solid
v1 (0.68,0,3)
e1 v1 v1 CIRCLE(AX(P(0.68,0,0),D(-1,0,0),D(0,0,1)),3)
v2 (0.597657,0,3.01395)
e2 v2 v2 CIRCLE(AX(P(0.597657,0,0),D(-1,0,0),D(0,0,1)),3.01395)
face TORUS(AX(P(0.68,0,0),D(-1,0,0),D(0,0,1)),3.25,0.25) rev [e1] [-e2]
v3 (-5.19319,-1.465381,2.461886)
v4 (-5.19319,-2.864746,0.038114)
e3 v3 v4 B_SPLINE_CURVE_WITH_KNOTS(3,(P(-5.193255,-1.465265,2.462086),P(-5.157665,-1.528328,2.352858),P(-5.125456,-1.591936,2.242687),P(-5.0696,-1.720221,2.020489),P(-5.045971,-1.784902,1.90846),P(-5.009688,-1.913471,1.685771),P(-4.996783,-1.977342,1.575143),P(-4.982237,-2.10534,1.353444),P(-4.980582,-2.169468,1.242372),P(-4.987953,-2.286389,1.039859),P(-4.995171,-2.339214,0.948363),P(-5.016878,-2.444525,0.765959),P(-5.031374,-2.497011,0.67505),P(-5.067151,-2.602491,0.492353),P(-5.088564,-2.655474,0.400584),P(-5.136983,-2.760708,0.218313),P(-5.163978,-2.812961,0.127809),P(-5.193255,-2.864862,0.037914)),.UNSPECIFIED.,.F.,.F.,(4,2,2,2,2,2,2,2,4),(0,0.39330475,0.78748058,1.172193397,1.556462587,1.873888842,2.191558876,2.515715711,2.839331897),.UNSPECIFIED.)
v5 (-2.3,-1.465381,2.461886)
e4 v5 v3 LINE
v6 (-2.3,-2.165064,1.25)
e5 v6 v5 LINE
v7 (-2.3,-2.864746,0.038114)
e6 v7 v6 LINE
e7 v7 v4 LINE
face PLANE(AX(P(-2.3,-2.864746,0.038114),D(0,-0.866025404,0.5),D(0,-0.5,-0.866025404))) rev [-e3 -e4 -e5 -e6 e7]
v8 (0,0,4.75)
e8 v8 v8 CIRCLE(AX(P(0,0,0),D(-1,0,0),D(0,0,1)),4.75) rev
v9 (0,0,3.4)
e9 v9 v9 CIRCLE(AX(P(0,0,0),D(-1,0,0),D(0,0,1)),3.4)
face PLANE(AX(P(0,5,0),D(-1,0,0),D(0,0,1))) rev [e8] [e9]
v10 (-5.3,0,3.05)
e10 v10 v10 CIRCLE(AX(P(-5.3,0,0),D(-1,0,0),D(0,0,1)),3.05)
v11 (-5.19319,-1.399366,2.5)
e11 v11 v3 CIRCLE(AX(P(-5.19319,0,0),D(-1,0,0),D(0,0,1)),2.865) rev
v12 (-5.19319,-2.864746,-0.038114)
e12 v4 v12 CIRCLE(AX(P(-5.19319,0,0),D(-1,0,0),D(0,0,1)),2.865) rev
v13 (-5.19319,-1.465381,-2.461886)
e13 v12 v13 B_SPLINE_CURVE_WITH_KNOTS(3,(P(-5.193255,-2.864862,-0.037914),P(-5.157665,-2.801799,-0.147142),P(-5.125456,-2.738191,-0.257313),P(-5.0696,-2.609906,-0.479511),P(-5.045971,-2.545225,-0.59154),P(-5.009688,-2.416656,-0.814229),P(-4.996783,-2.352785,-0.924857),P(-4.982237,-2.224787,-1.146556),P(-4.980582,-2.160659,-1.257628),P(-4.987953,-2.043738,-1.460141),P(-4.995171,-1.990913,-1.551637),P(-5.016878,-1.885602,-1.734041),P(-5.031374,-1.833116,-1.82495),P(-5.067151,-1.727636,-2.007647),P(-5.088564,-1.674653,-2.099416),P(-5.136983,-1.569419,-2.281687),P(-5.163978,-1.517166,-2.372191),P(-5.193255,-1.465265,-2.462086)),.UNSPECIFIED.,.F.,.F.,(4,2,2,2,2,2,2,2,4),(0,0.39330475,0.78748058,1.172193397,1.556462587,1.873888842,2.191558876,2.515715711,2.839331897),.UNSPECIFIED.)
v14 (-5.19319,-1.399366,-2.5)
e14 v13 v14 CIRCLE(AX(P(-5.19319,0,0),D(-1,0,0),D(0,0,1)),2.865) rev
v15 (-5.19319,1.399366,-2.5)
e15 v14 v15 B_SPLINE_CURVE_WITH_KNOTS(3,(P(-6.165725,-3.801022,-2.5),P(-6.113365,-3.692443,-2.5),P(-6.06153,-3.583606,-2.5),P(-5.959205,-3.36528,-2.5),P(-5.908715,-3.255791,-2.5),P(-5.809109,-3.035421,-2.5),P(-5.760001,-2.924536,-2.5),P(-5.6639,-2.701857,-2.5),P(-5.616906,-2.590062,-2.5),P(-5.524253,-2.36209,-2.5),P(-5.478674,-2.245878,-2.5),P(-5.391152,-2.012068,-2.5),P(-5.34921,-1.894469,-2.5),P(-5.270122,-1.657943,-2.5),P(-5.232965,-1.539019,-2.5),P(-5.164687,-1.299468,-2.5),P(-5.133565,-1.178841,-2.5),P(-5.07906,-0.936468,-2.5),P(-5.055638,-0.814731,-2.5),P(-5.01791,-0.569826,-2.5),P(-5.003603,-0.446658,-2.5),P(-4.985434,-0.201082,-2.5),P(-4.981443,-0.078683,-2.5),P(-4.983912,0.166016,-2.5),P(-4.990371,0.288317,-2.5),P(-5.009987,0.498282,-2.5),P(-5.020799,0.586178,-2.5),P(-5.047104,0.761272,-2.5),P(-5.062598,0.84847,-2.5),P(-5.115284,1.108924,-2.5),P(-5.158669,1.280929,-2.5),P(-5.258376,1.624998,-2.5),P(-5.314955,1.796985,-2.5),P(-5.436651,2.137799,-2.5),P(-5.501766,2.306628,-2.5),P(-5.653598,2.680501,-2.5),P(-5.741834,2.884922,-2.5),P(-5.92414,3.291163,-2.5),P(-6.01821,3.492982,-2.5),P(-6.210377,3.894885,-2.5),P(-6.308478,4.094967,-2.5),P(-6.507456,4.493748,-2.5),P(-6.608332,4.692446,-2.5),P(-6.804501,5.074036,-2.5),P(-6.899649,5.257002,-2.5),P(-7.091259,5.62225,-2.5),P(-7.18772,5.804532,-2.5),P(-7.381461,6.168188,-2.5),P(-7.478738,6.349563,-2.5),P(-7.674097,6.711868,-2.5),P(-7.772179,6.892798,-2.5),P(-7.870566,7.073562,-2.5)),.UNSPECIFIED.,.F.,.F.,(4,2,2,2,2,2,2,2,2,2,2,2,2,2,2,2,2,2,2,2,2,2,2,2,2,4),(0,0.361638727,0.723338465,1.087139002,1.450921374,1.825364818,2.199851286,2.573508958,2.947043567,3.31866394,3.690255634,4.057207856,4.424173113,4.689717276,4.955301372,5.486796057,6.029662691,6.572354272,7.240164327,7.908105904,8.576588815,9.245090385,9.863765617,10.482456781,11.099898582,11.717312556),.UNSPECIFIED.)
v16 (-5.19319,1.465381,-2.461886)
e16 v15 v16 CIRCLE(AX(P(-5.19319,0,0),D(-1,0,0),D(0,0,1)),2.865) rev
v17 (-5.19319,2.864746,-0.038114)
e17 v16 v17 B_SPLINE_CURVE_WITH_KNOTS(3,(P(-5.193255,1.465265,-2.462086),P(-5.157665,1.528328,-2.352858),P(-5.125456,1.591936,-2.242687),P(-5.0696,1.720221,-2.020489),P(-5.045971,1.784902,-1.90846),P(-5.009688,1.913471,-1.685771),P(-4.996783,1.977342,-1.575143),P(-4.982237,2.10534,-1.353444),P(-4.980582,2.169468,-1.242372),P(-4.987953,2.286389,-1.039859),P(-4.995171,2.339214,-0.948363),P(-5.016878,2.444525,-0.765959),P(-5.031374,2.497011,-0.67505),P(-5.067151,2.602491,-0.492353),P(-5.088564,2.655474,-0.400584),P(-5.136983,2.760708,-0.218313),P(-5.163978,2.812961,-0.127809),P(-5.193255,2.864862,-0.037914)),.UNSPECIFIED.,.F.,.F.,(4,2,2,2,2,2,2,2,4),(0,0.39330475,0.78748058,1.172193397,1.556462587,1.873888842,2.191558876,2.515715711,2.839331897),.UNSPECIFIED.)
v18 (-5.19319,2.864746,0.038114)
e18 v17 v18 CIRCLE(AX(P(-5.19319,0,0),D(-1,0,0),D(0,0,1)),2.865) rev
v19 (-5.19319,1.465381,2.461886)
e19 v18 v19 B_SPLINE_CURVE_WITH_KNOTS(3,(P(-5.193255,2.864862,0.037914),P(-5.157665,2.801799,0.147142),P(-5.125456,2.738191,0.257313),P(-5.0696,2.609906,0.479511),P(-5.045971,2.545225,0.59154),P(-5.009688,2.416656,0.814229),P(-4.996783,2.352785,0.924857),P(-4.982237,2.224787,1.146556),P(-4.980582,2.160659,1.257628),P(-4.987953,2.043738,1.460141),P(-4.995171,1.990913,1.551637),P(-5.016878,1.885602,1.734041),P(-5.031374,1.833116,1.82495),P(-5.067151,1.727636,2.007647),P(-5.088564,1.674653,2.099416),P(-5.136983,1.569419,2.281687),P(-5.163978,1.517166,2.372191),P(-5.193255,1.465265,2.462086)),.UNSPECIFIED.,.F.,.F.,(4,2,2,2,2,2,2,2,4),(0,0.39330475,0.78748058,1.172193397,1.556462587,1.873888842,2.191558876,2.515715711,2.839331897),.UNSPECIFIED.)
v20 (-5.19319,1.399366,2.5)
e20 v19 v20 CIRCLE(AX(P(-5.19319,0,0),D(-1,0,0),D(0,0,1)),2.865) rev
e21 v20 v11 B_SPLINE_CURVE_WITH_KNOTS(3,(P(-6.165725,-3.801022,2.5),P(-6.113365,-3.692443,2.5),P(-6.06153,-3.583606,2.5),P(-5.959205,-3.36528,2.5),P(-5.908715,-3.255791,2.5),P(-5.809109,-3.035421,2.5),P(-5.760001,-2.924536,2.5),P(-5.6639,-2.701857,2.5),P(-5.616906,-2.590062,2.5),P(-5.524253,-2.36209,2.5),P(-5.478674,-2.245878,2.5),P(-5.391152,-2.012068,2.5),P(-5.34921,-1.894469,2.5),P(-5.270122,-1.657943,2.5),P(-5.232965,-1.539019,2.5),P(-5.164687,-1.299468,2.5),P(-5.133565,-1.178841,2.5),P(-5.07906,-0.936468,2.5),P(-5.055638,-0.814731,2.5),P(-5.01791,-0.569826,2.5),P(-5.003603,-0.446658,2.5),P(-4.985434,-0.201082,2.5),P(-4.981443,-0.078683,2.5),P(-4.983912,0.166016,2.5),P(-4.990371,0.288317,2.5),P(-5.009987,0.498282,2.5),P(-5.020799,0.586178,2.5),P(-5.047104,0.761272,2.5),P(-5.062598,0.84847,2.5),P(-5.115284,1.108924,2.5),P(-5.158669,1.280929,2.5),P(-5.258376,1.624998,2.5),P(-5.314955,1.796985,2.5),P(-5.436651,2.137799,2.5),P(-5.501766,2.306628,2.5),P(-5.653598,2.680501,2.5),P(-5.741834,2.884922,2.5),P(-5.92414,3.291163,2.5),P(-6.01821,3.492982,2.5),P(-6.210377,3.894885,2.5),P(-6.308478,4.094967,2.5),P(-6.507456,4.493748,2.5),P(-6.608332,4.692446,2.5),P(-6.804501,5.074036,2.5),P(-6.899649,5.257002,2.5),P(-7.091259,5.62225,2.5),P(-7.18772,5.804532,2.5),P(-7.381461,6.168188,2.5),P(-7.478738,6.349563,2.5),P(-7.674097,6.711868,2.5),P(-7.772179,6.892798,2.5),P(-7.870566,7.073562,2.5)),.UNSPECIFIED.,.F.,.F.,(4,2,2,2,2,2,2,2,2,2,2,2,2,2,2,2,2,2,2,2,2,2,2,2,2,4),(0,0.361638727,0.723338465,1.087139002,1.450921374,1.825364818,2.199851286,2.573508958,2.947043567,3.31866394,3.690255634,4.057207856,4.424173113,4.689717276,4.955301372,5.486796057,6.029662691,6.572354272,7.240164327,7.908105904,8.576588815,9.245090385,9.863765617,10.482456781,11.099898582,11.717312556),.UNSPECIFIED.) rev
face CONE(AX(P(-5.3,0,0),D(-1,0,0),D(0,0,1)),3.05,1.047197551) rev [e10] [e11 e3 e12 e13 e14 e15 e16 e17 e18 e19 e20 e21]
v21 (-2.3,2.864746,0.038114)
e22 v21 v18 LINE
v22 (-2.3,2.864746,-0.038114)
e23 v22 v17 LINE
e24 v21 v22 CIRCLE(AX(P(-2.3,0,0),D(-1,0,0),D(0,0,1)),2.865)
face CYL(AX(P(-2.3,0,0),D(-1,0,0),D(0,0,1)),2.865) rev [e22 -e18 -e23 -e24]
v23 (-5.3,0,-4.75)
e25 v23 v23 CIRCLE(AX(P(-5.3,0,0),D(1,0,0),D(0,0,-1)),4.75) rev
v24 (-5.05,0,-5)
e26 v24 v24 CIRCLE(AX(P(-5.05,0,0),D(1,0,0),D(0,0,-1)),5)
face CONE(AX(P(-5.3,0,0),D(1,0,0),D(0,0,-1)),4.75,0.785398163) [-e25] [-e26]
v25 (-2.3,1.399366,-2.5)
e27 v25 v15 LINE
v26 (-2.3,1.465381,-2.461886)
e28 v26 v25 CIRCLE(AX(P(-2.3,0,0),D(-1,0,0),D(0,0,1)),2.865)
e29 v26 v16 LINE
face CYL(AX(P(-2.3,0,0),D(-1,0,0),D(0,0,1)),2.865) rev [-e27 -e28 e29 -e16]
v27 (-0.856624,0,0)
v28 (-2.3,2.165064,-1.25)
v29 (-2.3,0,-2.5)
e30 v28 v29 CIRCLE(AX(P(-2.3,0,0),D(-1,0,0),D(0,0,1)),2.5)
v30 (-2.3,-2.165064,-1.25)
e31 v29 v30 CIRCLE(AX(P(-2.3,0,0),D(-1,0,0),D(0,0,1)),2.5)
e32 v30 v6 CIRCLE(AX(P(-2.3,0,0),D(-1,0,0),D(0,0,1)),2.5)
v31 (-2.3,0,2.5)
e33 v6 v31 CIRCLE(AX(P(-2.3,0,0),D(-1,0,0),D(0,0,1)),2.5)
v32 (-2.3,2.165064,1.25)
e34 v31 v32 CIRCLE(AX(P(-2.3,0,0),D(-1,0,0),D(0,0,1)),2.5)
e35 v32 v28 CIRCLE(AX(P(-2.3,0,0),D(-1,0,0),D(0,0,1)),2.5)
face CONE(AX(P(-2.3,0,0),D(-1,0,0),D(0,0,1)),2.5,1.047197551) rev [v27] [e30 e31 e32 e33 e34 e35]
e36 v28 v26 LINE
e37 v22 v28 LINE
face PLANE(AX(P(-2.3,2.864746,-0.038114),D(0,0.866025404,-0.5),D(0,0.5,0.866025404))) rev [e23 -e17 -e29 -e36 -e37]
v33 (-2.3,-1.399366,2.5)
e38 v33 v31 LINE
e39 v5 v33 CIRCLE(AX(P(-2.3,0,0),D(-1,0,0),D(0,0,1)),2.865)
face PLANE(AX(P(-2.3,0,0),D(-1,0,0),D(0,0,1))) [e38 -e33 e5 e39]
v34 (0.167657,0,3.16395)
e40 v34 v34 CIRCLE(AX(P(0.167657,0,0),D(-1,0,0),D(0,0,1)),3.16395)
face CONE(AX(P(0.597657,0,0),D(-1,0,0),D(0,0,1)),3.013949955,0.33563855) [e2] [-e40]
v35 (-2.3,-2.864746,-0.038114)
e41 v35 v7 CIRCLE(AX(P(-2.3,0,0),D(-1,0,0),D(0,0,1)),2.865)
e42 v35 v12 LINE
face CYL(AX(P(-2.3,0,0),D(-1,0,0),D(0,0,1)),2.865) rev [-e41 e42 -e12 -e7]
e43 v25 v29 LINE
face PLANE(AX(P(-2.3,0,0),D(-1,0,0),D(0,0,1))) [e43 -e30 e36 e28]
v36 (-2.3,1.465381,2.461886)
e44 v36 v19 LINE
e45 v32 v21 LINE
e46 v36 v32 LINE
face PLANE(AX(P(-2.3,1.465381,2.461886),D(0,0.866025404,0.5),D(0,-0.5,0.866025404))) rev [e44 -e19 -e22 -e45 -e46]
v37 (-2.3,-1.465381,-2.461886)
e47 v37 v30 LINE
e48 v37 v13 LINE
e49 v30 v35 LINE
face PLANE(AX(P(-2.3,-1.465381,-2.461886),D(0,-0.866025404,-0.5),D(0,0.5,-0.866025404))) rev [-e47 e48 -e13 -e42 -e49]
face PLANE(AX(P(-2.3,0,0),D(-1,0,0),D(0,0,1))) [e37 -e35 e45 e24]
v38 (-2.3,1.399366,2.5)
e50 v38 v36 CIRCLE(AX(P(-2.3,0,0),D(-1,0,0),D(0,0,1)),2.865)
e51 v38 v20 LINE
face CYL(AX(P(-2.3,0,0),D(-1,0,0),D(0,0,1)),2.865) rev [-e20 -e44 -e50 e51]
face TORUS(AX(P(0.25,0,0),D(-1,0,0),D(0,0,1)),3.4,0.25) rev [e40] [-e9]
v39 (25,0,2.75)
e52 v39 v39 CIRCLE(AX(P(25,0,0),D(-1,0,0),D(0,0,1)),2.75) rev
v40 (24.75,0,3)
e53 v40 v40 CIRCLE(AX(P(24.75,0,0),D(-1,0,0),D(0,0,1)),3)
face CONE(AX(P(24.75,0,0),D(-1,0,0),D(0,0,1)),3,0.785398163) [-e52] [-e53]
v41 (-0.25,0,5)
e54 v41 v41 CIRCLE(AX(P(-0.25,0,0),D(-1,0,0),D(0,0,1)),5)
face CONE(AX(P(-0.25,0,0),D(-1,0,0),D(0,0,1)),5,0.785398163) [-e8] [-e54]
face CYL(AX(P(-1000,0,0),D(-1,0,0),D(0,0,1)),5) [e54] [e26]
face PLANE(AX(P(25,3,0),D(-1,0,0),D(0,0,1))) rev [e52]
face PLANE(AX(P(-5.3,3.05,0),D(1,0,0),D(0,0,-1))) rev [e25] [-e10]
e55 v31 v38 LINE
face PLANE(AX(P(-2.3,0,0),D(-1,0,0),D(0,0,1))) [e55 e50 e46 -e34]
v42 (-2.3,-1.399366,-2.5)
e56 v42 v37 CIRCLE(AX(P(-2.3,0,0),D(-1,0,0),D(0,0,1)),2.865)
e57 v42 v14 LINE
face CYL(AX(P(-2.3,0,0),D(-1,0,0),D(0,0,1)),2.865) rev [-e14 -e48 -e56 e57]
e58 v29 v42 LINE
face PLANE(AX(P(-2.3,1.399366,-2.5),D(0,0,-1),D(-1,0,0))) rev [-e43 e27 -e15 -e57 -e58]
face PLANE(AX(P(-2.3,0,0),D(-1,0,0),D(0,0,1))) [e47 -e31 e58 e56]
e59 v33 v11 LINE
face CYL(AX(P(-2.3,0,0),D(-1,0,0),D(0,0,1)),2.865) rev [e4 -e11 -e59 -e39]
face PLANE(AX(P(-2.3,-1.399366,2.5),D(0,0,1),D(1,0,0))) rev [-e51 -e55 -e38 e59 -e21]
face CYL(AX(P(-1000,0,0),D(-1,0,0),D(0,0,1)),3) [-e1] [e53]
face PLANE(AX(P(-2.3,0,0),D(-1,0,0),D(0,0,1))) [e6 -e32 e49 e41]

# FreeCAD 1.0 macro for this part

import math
import FreeCAD as App
import Part
import Sketcher
Q = App.Units.Quantity


def edges_at(feature, points):
    """Names of the edges that pass closest to the given points."""
    edges = feature.Shape.Edges
    near = lambda p: min(range(len(edges)), key=lambda i: edges[i].distToShape(Part.Vertex(*p))[0])
    return sorted({f"Edge{near(p) + 1}" for p in points})

doc = App.newDocument("Part")
body = doc.addObject("PartDesign::Body", "Body")

sketch1 = body.newObject("Sketcher::SketchObject", "Sketch")
sketch1.AttachmentSupport = (doc.getObject("XY_Plane"), [""])
sketch1.MapMode = "FlatFace"
sketch1.addGeometry(Part.LineSegment(App.Vector(-5.3, 3.05, 0), App.Vector(-4.982457, 2.5, 0)), False)
sketch1.addGeometry(Part.LineSegment(App.Vector(-4.982457, 2.5, 0), App.Vector(-2.3, 2.5, 0)), False)
sketch1.addGeometry(Part.LineSegment(App.Vector(-2.3, 2.5, 0), App.Vector(-0.856624, 0, 0)), False)
sketch1.addGeometry(Part.LineSegment(App.Vector(-0.856624, 0, 0), App.Vector(25, 0, 0)), False)
sketch1.addGeometry(Part.LineSegment(App.Vector(25, 0, 0), App.Vector(25, 3, 0)), False)
sketch1.addGeometry(Part.LineSegment(App.Vector(25, 3, 0), App.Vector(0.68, 3, 0)), False)
sketch1.addGeometry(Part.ArcOfCircle(Part.Circle(App.Vector(0.68, 3.25, 0), App.Vector(0, 0, 1), 0.25), math.radians(-109.230674), math.radians(-89.999999)), False)
sketch1.addGeometry(Part.LineSegment(App.Vector(0.597657, 3.01395, 0), App.Vector(0.167657, 3.16395, 0)), False)
sketch1.addGeometry(Part.ArcOfCircle(Part.Circle(App.Vector(0.25, 3.4, 0), App.Vector(0, 0, 1), 0.25), math.radians(-180), math.radians(-109.230672)), False)
sketch1.addGeometry(Part.LineSegment(App.Vector(0, 3.4, 0), App.Vector(0, 5, 0)), False)
sketch1.addGeometry(Part.LineSegment(App.Vector(0, 5, 0), App.Vector(-5.3, 5, 0)), False)
sketch1.addGeometry(Part.LineSegment(App.Vector(-5.3, 5, 0), App.Vector(-5.3, 3.05, 0)), False)
sketch1.addConstraint(Sketcher.Constraint("Coincident", 0, 2, 1, 1))
sketch1.addConstraint(Sketcher.Constraint("Coincident", 1, 2, 2, 1))
sketch1.addConstraint(Sketcher.Constraint("Coincident", 2, 2, 3, 1))
sketch1.addConstraint(Sketcher.Constraint("Coincident", 3, 2, 4, 1))
sketch1.addConstraint(Sketcher.Constraint("Coincident", 4, 2, 5, 1))
sketch1.addConstraint(Sketcher.Constraint("Tangent", 5, 2, 6, 2))
sketch1.addConstraint(Sketcher.Constraint("Tangent", 6, 1, 7, 1))
sketch1.addConstraint(Sketcher.Constraint("Tangent", 7, 2, 8, 2))
sketch1.addConstraint(Sketcher.Constraint("Tangent", 8, 1, 9, 1))
sketch1.addConstraint(Sketcher.Constraint("Coincident", 9, 2, 10, 1))
sketch1.addConstraint(Sketcher.Constraint("Coincident", 10, 2, 11, 1))
sketch1.addConstraint(Sketcher.Constraint("Coincident", 11, 2, 0, 1))
sketch1.addConstraint(Sketcher.Constraint("Horizontal", 1))
sketch1.addConstraint(Sketcher.Constraint("Horizontal", 3))
sketch1.addConstraint(Sketcher.Constraint("Vertical", 4))
sketch1.addConstraint(Sketcher.Constraint("Horizontal", 5))
sketch1.addConstraint(Sketcher.Constraint("Vertical", 9))
sketch1.addConstraint(Sketcher.Constraint("Horizontal", 10))
sketch1.addConstraint(Sketcher.Constraint("Vertical", 11))
sketch1.addConstraint(Sketcher.Constraint("Equal", 6, 8))
sketch1.addConstraint(Sketcher.Constraint("PointOnObject", 2, 2, -1))
sketch1.addConstraint(Sketcher.Constraint("PointOnObject", 8, 1, -2))
sketch1.addConstraint(Sketcher.Constraint("Parallel", 0, 2))
sketch1.addConstraint(Sketcher.Constraint("DistanceY", 4, 1, 4, 2, 3.0))
sketch1.addConstraint(Sketcher.Constraint("Angle", 0, Q("-60 deg")))
sketch1.addConstraint(Sketcher.Constraint("Radius", 6, 0.25))
sketch1.addConstraint(Sketcher.Constraint("DistanceX", 10, 2, 10, 1, 5.3))
sketch1.addConstraint(Sketcher.Constraint("DistanceY", 9, 1, 9, 2, 1.6))
sketch1.addConstraint(Sketcher.Constraint("DistanceX", -1, 1, 3, 2, 25.0))
sketch1.addConstraint(Sketcher.Constraint("DistanceY", -1, 1, 9, 2, 5.0))
sketch1.addConstraint(Sketcher.Constraint("DistanceX", 10, 2, 1, 2, 3.0))
sketch1.addConstraint(Sketcher.Constraint("DistanceX", 5, 2, 5, 1, 24.32))
sketch1.addConstraint(Sketcher.Constraint("DistanceY", 11, 2, 11, 1, 1.95))
sketch1.addConstraint(Sketcher.Constraint("DistanceY", -1, 1, 0, 2, 2.5))
revolution = body.newObject("PartDesign::Revolution", "Revolution")
revolution.Profile = sketch1
revolution.ReferenceAxis = (sketch1, ["H_Axis"])
revolution.Angle = 360

sketch2 = body.newObject("Sketcher::SketchObject", "Sketch001")
sketch2.AttachmentSupport = (doc.getObject("YZ_Plane"), [""])
sketch2.MapMode = "FlatFace"
sketch2.AttachmentOffset = App.Placement(App.Vector(0, 0, -5.3), App.Rotation())
sketch2.addGeometry(Part.LineSegment(App.Vector(2.864746, -0.038114, 0), App.Vector(1.465381, -2.461886, 0)), False)
sketch2.addGeometry(Part.ArcOfCircle(Part.Circle(App.Vector(-0.000001, 0.000001, 0), App.Vector(0, 0, 1), 2.865002), math.radians(-60.762237), math.radians(-59.237763)), False)
sketch2.addGeometry(Part.LineSegment(App.Vector(1.399366, -2.5, 0), App.Vector(-1.399366, -2.5, 0)), False)
sketch2.addGeometry(Part.ArcOfCircle(Part.Circle(App.Vector(0.000001, 0.000001, 0), App.Vector(0, 0, 1), 2.865002), math.radians(-120.762237), math.radians(-119.237763)), False)
sketch2.addGeometry(Part.LineSegment(App.Vector(-1.465381, -2.461886, 0), App.Vector(-2.864746, -0.038114, 0)), False)
sketch2.addGeometry(Part.ArcOfCircle(Part.Circle(App.Vector(-0.000004, 0, 0), App.Vector(0, 0, 1), 2.864996), math.radians(179.237761), math.radians(180.762239)), False)
sketch2.addGeometry(Part.LineSegment(App.Vector(-2.864746, 0.038114, 0), App.Vector(-1.465381, 2.461886, 0)), False)
sketch2.addGeometry(Part.ArcOfCircle(Part.Circle(App.Vector(0.000001, -0.000001, 0), App.Vector(0, 0, 1), 2.865002), math.radians(119.237763), math.radians(120.762237)), False)
sketch2.addGeometry(Part.LineSegment(App.Vector(-1.399366, 2.5, 0), App.Vector(1.399366, 2.5, 0)), False)
sketch2.addGeometry(Part.ArcOfCircle(Part.Circle(App.Vector(-0.000001, -0.000001, 0), App.Vector(0, 0, 1), 2.865002), math.radians(59.237763), math.radians(60.762237)), False)
sketch2.addGeometry(Part.LineSegment(App.Vector(1.465381, 2.461886, 0), App.Vector(2.864746, 0.038114, 0)), False)
sketch2.addGeometry(Part.ArcOfCircle(Part.Circle(App.Vector(0.000004, 0, 0), App.Vector(0, 0, 1), 2.864996), math.radians(-0.762239), math.radians(0.762239)), False)
sketch2.addConstraint(Sketcher.Constraint("Coincident", 0, 2, 1, 2))
sketch2.addConstraint(Sketcher.Constraint("Coincident", 1, 1, 2, 1))
sketch2.addConstraint(Sketcher.Constraint("Coincident", 2, 2, 3, 2))
sketch2.addConstraint(Sketcher.Constraint("Coincident", 3, 1, 4, 1))
sketch2.addConstraint(Sketcher.Constraint("Coincident", 4, 2, 5, 2))
sketch2.addConstraint(Sketcher.Constraint("Coincident", 5, 1, 6, 1))
sketch2.addConstraint(Sketcher.Constraint("Coincident", 6, 2, 7, 2))
sketch2.addConstraint(Sketcher.Constraint("Coincident", 7, 1, 8, 1))
sketch2.addConstraint(Sketcher.Constraint("Coincident", 8, 2, 9, 2))
sketch2.addConstraint(Sketcher.Constraint("Coincident", 9, 1, 10, 1))
sketch2.addConstraint(Sketcher.Constraint("Coincident", 10, 2, 11, 2))
sketch2.addConstraint(Sketcher.Constraint("Coincident", 11, 1, 0, 1))
sketch2.addConstraint(Sketcher.Constraint("Horizontal", 2))
sketch2.addConstraint(Sketcher.Constraint("Horizontal", 8))
sketch2.addConstraint(Sketcher.Constraint("Coincident", 1, 3, -1, 1))
sketch2.addConstraint(Sketcher.Constraint("Coincident", 3, 3, -1, 1))
sketch2.addConstraint(Sketcher.Constraint("Coincident", 5, 3, -1, 1))
sketch2.addConstraint(Sketcher.Constraint("Coincident", 7, 3, -1, 1))
sketch2.addConstraint(Sketcher.Constraint("Coincident", 9, 3, -1, 1))
sketch2.addConstraint(Sketcher.Constraint("Coincident", 11, 3, -1, 1))
sketch2.addConstraint(Sketcher.Constraint("Radius", 1, 2.865002))
sketch2.addConstraint(Sketcher.Constraint("Radius", 3, 2.865002))
sketch2.addConstraint(Sketcher.Constraint("Radius", 7, 2.865002))
sketch2.addConstraint(Sketcher.Constraint("Radius", 9, 2.865002))
sketch2.addConstraint(Sketcher.Constraint("DistanceY", 1, 1, -1, 1, 2.5))
sketch2.addConstraint(Sketcher.Constraint("DistanceY", -1, 1, 7, 1, 2.5))
sketch2.addConstraint(Sketcher.Constraint("DistanceY", 3, 1, 5, 1, 2.5))
sketch2.addConstraint(Sketcher.Constraint("DistanceY", 4, 2, 6, 2, 2.5))
sketch2.addConstraint(Sketcher.Constraint("DistanceY", 0, 2, 10, 2, 2.5))
sketch2.addConstraint(Sketcher.Constraint("Radius", 5, 2.864996))
sketch2.addConstraint(Sketcher.Constraint("Radius", 11, 2.864996))
sketch2.addConstraint(Sketcher.Constraint("Distance", 0, 2.798732))
sketch2.addConstraint(Sketcher.Constraint("Distance", 4, 2.798732))
sketch2.addConstraint(Sketcher.Constraint("Distance", 6, 2.798732))
sketch2.addConstraint(Sketcher.Constraint("Distance", 10, 2.798732))
sketch2.addConstraint(Sketcher.Constraint("DistanceX", -1, 1, 0, 2, 1.465381))
pocket1 = body.newObject("PartDesign::Pocket", "Pocket")
pocket1.Profile = sketch2
pocket1.Length = 3
pocket1.Reversed = True
doc.recompute()

chamfer = body.newObject("PartDesign::Chamfer", "Chamfer")
chamfer.Base = (pocket1, edges_at(pocket1, [(-5.3, -5, 0), (0, -5, 0), (25, -3, 0)]))
chamfer.Size = 0.25

doc.recompute()
